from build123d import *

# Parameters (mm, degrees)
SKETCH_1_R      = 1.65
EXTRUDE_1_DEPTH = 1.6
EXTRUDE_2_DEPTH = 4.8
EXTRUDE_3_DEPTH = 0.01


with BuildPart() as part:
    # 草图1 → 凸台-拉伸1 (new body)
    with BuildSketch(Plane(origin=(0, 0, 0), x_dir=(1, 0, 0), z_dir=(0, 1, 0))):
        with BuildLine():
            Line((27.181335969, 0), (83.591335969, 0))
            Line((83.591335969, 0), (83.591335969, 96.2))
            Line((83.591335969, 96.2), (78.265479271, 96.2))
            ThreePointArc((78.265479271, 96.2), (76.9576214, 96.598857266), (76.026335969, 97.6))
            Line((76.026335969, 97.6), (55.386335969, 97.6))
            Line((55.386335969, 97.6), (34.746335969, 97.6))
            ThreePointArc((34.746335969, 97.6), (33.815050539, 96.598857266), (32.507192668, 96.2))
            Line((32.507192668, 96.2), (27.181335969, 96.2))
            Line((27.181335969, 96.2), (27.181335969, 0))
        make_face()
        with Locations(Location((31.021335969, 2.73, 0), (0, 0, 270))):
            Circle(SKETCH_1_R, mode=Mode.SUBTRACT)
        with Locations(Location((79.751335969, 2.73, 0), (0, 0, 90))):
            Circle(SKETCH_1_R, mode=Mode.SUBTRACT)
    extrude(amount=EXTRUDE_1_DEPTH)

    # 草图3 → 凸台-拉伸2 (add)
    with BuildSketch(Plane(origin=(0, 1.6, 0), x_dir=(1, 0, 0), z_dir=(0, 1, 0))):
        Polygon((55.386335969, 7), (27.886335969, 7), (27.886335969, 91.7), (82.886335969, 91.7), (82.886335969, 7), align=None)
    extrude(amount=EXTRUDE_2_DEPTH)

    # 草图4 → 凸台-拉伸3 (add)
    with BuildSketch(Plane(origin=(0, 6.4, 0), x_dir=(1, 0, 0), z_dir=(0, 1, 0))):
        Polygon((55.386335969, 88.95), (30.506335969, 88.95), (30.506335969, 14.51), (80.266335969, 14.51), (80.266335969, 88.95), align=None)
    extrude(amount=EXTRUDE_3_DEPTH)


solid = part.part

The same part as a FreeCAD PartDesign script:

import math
import FreeCAD as App
import Part
import Sketcher
from FreeCAD import Vector
Q = App.Units.Quantity

doc = App.newDocument("Part")
body = doc.addObject("PartDesign::Body", "Body")

# Sketch on XZ plane
sketch1 = body.newObject("Sketcher::SketchObject", "Sketch")
sketch1.AttachmentSupport = (doc.getObject("XZ_Plane"), [""])
sketch1.MapMode = "FlatFace"
sketch1.addGeometry([
    Part.LineSegment(Vector(27.2, 0, 0), Vector(83.6, 0, 0)),  # 0
    Part.LineSegment(Vector(83.6, 0, 0), Vector(83.6, -96.2, 0)),  # 1
    Part.LineSegment(Vector(83.6, -96.2, 0), Vector(78.3, -96.2, 0)),  # 2
    Part.ArcOfCircle(Part.Circle(Vector(78.4, -98.8, 0), Vector(0, 0, 1), 2.6), math.radians(92), math.radians(152)),  # 3
    Part.LineSegment(Vector(76, -97.6, 0), Vector(34.7, -97.6, 0)),  # 4
    Part.ArcOfCircle(Part.Circle(Vector(32.4, -98.8, 0), Vector(0, 0, 1), 2.6), math.radians(28), math.radians(88)),  # 5
    Part.LineSegment(Vector(32.5, -96.2, 0), Vector(27.2, -96.2, 0)),  # 6
    Part.LineSegment(Vector(27.2, -96.2, 0), Vector(27.2, 0, 0)),  # 7
    Part.Circle(Vector(31, -2.7, 0), Vector(0, 0, 1), 1.6),  # 8
    Part.Circle(Vector(79.8, -2.7, 0), Vector(0, 0, 1), 1.6),  # 9
], False)
sketch1.addConstraint([
    Sketcher.Constraint("Coincident", 0, 2, 1, 1),
    Sketcher.Constraint("Coincident", 1, 2, 2, 1),
    Sketcher.Constraint("Coincident", 2, 2, 3, 1),
    Sketcher.Constraint("Coincident", 3, 2, 4, 1),
    Sketcher.Constraint("Coincident", 4, 2, 5, 1),
    Sketcher.Constraint("Coincident", 5, 2, 6, 1),
    Sketcher.Constraint("Coincident", 6, 2, 7, 1),
    Sketcher.Constraint("Coincident", 7, 2, 0, 1),
    Sketcher.Constraint("Horizontal", 0),
    Sketcher.Constraint("Vertical", 1),
    Sketcher.Constraint("Horizontal", 2),
    Sketcher.Constraint("Horizontal", 4),
    Sketcher.Constraint("Horizontal", 6),
    Sketcher.Constraint("Vertical", 7),
    Sketcher.Constraint("Equal", 3, 5),
    Sketcher.Constraint("Equal", 8, 9),
    Sketcher.Constraint("PointOnObject", 0, 2, -1),
    Sketcher.Constraint("Horizontal", 3, 3, 5, 3),
    Sketcher.Constraint("Horizontal", 8, 3, 9, 3),
    Sketcher.Constraint("Horizontal", 2, 2, 5, 2),
    Sketcher.Constraint("Equal", 2, 6),
    Sketcher.Constraint("Diameter", 8, Q("3.3 mm")),
    Sketcher.Constraint("DistanceY", 1, 2, 1, 1, Q("96.2 mm")),
    Sketcher.Constraint("DistanceX", 0, 1, 0, 2, Q("56.41 mm")),
    Sketcher.Constraint("DistanceX", 4, 2, 4, 1, Q("41.28 mm")),
    Sketcher.Constraint("DistanceY", 3, 2, -1, 1, Q("97.6 mm")),
    Sketcher.Constraint("DistanceY", 8, 3, -1, 1, Q("2.73 mm")),
    Sketcher.Constraint("DistanceX", 8, 3, 9, 3, Q("48.73 mm")),
    Sketcher.Constraint("DistanceX", 9, 3, 0, 2, Q("3.84 mm")),
    Sketcher.Constraint("Radius", 3, Q("2.632024 mm")),
    Sketcher.Constraint("DistanceX", 2, 2, 2, 1, Q("5.325857 mm")),
    Sketcher.Constraint("DistanceX", -1, 1, 2, 2, Q("78.265479 mm")),
])
pad1 = body.newObject("PartDesign::Pad", "Pad")
pad1.Profile = sketch1
pad1.Length = 1.6
pad1.Reversed = True

# Sketch on XZ plane
sketch2 = body.newObject("Sketcher::SketchObject", "Sketch001")
sketch2.AttachmentSupport = (doc.getObject("XZ_Plane"), [""])
sketch2.MapMode = "FlatFace"
sketch2.AttachmentOffset = App.Placement(Vector(0, 0, -1.6), App.Rotation())
sketch2.addGeometry([
    Part.LineSegment(Vector(28, -7, 0), Vector(83, -7, 0)),
    Part.LineSegment(Vector(83, -7, 0), Vector(83, -92, 0)),
    Part.LineSegment(Vector(83, -92, 0), Vector(28, -92, 0)),
    Part.LineSegment(Vector(28, -92, 0), Vector(28, -7, 0)),
], False)
sketch2.addConstraint([
    Sketcher.Constraint("Coincident", 0, 2, 1, 1),
    Sketcher.Constraint("Coincident", 1, 2, 2, 1),
    Sketcher.Constraint("Coincident", 2, 2, 3, 1),
    Sketcher.Constraint("Coincident", 3, 2, 0, 1),
    Sketcher.Constraint("Horizontal", 0),
    Sketcher.Constraint("Vertical", 1),
    Sketcher.Constraint("Horizontal", 2),
    Sketcher.Constraint("Vertical", 3),
    Sketcher.Constraint("DistanceX", 0, 1, 0, 2, Q("55 mm")),
    Sketcher.Constraint("DistanceY", 1, 2, 1, 1, Q("84.7 mm")),
    Sketcher.Constraint("DistanceY", 0, 2, -1, 1, Q("7 mm")),
    Sketcher.Constraint("DistanceX", -1, 1, 0, 2, Q("82.886336 mm")),
])
pad2 = body.newObject("PartDesign::Pad", "Pad001")
pad2.Profile = sketch2
pad2.Length = 4.8
pad2.Reversed = True

# Sketch on XZ plane
sketch3 = body.newObject("Sketcher::SketchObject", "Sketch002")
sketch3.AttachmentSupport = (doc.getObject("XZ_Plane"), [""])
sketch3.MapMode = "FlatFace"
sketch3.AttachmentOffset = App.Placement(Vector(0, 0, -6.4), App.Rotation())
sketch3.addGeometry([
    Part.LineSegment(Vector(31, -89, 0), Vector(31, -15, 0)),
    Part.LineSegment(Vector(31, -15, 0), Vector(80, -15, 0)),
    Part.LineSegment(Vector(80, -15, 0), Vector(80, -89, 0)),
    Part.LineSegment(Vector(80, -89, 0), Vector(31, -89, 0)),
], False)
sketch3.addConstraint([
    Sketcher.Constraint("Coincident", 0, 2, 1, 1),
    Sketcher.Constraint("Coincident", 1, 2, 2, 1),
    Sketcher.Constraint("Coincident", 2, 2, 3, 1),
    Sketcher.Constraint("Coincident", 3, 2, 0, 1),
    Sketcher.Constraint("Vertical", 0),
    Sketcher.Constraint("Horizontal", 1),
    Sketcher.Constraint("Vertical", 2),
    Sketcher.Constraint("Horizontal", 3),
    Sketcher.Constraint("DistanceX", 1, 1, 1, 2, Q("49.76 mm")),
    Sketcher.Constraint("DistanceY", 0, 1, 0, 2, Q("74.44 mm")),
    Sketcher.Constraint("DistanceY", 0, 2, -1, 1, Q("14.51 mm")),
    Sketcher.Constraint("DistanceX", -1, 1, 0, 2, Q("30.506336 mm")),
])
pad3 = body.newObject("PartDesign::Pad", "Pad002")
pad3.Profile = sketch3
pad3.Length = 0.01
pad3.Reversed = True

doc.recompute()
